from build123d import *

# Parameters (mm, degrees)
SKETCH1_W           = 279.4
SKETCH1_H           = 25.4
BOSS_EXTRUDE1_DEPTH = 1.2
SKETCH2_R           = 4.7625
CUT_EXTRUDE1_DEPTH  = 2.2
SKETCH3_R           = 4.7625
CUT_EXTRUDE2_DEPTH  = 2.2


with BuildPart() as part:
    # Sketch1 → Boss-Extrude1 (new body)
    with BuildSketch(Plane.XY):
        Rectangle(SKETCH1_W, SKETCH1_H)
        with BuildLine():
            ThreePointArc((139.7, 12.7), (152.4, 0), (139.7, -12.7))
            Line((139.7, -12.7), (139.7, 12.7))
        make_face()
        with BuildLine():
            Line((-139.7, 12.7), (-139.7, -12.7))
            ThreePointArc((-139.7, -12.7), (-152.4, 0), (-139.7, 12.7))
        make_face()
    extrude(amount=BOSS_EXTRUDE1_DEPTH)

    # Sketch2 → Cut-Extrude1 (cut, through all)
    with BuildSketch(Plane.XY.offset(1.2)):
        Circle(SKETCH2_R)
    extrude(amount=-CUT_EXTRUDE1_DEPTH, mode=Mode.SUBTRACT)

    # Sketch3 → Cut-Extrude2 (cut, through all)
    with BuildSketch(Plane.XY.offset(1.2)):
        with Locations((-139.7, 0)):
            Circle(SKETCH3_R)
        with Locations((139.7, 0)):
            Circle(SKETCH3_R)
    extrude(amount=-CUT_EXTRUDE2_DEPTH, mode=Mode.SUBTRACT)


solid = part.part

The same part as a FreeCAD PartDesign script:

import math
import FreeCAD as App
import Part
import Sketcher
from FreeCAD import Vector
Q = App.Units.Quantity

doc = App.newDocument("Part")
body = doc.addObject("PartDesign::Body", "Body")

sketch1 = body.newObject("Sketcher::SketchObject", "Sketch")
sketch1.AttachmentSupport = (doc.getObject("XY_Plane"), [""])
sketch1.MapMode = "FlatFace"
sketch1.addGeometry([
    Part.LineSegment(Vector(-140, -13, 0), Vector(140, -13, 0)),
    Part.ArcOfCircle(Part.Circle(Vector(140, 0, 0), Vector(0, 0, 1), 13), math.radians(-90), math.radians(90)),
    Part.LineSegment(Vector(140, 13, 0), Vector(-140, 13, 0)),
    Part.ArcOfCircle(Part.Circle(Vector(-140, 0, 0), Vector(0, 0, 1), 13), math.radians(90), math.radians(270)),
], False)
sketch1.addConstraint([
    Sketcher.Constraint("Tangent", 0, 2, 1, 1),
    Sketcher.Constraint("Tangent", 1, 2, 2, 1),
    Sketcher.Constraint("Tangent", 2, 2, 3, 1),
    Sketcher.Constraint("Tangent", 3, 2, 0, 1),
    Sketcher.Constraint("Horizontal", 0),
    Sketcher.Constraint("Horizontal", 2),
    Sketcher.Constraint("Symmetric", 1, 3, 3, 3, -1, 1),
    Sketcher.Constraint("Radius", 1, Q("0.5 in")),
    Sketcher.Constraint("DistanceX", 0, 1, 0, 2, Q("11 in")),
])
pad1 = body.newObject("PartDesign::Pad", "Pad")
pad1.Profile = sketch1
pad1.Length = 1.2

sketch2 = body.newObject("Sketcher::SketchObject", "Sketch001")
sketch2.AttachmentSupport = (doc.getObject("XY_Plane"), [""])
sketch2.MapMode = "FlatFace"
sketch2.AttachmentOffset = App.Placement(Vector(0, 0, 1.2), App.Rotation())
sketch2.addGeometry(Part.Circle(Vector(0, 0, 0), Vector(0, 0, 1), 4.8), False)
sketch2.addConstraint([
    Sketcher.Constraint("Coincident", 0, 3, -1, 1),
    Sketcher.Constraint("Diameter", 0, Q("0.375 in")),
])
pocket1 = body.newObject("PartDesign::Pocket", "Pocket")
pocket1.Profile = sketch2
pocket1.Type = "ThroughAll"

sketch3 = body.newObject("Sketcher::SketchObject", "Sketch002")
sketch3.AttachmentSupport = (doc.getObject("XY_Plane"), [""])
sketch3.MapMode = "FlatFace"
sketch3.AttachmentOffset = App.Placement(Vector(0, 0, 1.2), App.Rotation())
sketch3.addGeometry([
    Part.Circle(Vector(-139.7, 0, 0), Vector(0, 0, 1), 4.8),
    Part.Circle(Vector(139.7, 0, 0), Vector(0, 0, 1), 4.8),
], False)
sketch3.addConstraint([
    Sketcher.Constraint("Equal", 0, 1),
    Sketcher.Constraint("Symmetric", 0, 3, 1, 3, -1, 1),
    Sketcher.Constraint("PointOnObject", 0, 3, -1),
    Sketcher.Constraint("Diameter", 0, Q("0.375 in")),
    Sketcher.Constraint("DistanceX", 0, 3, 1, 3, Q("11 in")),
])
pocket2 = body.newObject("PartDesign::Pocket", "Pocket001")
pocket2.Profile = sketch3
pocket2.Type = "ThroughAll"

doc.recompute()
